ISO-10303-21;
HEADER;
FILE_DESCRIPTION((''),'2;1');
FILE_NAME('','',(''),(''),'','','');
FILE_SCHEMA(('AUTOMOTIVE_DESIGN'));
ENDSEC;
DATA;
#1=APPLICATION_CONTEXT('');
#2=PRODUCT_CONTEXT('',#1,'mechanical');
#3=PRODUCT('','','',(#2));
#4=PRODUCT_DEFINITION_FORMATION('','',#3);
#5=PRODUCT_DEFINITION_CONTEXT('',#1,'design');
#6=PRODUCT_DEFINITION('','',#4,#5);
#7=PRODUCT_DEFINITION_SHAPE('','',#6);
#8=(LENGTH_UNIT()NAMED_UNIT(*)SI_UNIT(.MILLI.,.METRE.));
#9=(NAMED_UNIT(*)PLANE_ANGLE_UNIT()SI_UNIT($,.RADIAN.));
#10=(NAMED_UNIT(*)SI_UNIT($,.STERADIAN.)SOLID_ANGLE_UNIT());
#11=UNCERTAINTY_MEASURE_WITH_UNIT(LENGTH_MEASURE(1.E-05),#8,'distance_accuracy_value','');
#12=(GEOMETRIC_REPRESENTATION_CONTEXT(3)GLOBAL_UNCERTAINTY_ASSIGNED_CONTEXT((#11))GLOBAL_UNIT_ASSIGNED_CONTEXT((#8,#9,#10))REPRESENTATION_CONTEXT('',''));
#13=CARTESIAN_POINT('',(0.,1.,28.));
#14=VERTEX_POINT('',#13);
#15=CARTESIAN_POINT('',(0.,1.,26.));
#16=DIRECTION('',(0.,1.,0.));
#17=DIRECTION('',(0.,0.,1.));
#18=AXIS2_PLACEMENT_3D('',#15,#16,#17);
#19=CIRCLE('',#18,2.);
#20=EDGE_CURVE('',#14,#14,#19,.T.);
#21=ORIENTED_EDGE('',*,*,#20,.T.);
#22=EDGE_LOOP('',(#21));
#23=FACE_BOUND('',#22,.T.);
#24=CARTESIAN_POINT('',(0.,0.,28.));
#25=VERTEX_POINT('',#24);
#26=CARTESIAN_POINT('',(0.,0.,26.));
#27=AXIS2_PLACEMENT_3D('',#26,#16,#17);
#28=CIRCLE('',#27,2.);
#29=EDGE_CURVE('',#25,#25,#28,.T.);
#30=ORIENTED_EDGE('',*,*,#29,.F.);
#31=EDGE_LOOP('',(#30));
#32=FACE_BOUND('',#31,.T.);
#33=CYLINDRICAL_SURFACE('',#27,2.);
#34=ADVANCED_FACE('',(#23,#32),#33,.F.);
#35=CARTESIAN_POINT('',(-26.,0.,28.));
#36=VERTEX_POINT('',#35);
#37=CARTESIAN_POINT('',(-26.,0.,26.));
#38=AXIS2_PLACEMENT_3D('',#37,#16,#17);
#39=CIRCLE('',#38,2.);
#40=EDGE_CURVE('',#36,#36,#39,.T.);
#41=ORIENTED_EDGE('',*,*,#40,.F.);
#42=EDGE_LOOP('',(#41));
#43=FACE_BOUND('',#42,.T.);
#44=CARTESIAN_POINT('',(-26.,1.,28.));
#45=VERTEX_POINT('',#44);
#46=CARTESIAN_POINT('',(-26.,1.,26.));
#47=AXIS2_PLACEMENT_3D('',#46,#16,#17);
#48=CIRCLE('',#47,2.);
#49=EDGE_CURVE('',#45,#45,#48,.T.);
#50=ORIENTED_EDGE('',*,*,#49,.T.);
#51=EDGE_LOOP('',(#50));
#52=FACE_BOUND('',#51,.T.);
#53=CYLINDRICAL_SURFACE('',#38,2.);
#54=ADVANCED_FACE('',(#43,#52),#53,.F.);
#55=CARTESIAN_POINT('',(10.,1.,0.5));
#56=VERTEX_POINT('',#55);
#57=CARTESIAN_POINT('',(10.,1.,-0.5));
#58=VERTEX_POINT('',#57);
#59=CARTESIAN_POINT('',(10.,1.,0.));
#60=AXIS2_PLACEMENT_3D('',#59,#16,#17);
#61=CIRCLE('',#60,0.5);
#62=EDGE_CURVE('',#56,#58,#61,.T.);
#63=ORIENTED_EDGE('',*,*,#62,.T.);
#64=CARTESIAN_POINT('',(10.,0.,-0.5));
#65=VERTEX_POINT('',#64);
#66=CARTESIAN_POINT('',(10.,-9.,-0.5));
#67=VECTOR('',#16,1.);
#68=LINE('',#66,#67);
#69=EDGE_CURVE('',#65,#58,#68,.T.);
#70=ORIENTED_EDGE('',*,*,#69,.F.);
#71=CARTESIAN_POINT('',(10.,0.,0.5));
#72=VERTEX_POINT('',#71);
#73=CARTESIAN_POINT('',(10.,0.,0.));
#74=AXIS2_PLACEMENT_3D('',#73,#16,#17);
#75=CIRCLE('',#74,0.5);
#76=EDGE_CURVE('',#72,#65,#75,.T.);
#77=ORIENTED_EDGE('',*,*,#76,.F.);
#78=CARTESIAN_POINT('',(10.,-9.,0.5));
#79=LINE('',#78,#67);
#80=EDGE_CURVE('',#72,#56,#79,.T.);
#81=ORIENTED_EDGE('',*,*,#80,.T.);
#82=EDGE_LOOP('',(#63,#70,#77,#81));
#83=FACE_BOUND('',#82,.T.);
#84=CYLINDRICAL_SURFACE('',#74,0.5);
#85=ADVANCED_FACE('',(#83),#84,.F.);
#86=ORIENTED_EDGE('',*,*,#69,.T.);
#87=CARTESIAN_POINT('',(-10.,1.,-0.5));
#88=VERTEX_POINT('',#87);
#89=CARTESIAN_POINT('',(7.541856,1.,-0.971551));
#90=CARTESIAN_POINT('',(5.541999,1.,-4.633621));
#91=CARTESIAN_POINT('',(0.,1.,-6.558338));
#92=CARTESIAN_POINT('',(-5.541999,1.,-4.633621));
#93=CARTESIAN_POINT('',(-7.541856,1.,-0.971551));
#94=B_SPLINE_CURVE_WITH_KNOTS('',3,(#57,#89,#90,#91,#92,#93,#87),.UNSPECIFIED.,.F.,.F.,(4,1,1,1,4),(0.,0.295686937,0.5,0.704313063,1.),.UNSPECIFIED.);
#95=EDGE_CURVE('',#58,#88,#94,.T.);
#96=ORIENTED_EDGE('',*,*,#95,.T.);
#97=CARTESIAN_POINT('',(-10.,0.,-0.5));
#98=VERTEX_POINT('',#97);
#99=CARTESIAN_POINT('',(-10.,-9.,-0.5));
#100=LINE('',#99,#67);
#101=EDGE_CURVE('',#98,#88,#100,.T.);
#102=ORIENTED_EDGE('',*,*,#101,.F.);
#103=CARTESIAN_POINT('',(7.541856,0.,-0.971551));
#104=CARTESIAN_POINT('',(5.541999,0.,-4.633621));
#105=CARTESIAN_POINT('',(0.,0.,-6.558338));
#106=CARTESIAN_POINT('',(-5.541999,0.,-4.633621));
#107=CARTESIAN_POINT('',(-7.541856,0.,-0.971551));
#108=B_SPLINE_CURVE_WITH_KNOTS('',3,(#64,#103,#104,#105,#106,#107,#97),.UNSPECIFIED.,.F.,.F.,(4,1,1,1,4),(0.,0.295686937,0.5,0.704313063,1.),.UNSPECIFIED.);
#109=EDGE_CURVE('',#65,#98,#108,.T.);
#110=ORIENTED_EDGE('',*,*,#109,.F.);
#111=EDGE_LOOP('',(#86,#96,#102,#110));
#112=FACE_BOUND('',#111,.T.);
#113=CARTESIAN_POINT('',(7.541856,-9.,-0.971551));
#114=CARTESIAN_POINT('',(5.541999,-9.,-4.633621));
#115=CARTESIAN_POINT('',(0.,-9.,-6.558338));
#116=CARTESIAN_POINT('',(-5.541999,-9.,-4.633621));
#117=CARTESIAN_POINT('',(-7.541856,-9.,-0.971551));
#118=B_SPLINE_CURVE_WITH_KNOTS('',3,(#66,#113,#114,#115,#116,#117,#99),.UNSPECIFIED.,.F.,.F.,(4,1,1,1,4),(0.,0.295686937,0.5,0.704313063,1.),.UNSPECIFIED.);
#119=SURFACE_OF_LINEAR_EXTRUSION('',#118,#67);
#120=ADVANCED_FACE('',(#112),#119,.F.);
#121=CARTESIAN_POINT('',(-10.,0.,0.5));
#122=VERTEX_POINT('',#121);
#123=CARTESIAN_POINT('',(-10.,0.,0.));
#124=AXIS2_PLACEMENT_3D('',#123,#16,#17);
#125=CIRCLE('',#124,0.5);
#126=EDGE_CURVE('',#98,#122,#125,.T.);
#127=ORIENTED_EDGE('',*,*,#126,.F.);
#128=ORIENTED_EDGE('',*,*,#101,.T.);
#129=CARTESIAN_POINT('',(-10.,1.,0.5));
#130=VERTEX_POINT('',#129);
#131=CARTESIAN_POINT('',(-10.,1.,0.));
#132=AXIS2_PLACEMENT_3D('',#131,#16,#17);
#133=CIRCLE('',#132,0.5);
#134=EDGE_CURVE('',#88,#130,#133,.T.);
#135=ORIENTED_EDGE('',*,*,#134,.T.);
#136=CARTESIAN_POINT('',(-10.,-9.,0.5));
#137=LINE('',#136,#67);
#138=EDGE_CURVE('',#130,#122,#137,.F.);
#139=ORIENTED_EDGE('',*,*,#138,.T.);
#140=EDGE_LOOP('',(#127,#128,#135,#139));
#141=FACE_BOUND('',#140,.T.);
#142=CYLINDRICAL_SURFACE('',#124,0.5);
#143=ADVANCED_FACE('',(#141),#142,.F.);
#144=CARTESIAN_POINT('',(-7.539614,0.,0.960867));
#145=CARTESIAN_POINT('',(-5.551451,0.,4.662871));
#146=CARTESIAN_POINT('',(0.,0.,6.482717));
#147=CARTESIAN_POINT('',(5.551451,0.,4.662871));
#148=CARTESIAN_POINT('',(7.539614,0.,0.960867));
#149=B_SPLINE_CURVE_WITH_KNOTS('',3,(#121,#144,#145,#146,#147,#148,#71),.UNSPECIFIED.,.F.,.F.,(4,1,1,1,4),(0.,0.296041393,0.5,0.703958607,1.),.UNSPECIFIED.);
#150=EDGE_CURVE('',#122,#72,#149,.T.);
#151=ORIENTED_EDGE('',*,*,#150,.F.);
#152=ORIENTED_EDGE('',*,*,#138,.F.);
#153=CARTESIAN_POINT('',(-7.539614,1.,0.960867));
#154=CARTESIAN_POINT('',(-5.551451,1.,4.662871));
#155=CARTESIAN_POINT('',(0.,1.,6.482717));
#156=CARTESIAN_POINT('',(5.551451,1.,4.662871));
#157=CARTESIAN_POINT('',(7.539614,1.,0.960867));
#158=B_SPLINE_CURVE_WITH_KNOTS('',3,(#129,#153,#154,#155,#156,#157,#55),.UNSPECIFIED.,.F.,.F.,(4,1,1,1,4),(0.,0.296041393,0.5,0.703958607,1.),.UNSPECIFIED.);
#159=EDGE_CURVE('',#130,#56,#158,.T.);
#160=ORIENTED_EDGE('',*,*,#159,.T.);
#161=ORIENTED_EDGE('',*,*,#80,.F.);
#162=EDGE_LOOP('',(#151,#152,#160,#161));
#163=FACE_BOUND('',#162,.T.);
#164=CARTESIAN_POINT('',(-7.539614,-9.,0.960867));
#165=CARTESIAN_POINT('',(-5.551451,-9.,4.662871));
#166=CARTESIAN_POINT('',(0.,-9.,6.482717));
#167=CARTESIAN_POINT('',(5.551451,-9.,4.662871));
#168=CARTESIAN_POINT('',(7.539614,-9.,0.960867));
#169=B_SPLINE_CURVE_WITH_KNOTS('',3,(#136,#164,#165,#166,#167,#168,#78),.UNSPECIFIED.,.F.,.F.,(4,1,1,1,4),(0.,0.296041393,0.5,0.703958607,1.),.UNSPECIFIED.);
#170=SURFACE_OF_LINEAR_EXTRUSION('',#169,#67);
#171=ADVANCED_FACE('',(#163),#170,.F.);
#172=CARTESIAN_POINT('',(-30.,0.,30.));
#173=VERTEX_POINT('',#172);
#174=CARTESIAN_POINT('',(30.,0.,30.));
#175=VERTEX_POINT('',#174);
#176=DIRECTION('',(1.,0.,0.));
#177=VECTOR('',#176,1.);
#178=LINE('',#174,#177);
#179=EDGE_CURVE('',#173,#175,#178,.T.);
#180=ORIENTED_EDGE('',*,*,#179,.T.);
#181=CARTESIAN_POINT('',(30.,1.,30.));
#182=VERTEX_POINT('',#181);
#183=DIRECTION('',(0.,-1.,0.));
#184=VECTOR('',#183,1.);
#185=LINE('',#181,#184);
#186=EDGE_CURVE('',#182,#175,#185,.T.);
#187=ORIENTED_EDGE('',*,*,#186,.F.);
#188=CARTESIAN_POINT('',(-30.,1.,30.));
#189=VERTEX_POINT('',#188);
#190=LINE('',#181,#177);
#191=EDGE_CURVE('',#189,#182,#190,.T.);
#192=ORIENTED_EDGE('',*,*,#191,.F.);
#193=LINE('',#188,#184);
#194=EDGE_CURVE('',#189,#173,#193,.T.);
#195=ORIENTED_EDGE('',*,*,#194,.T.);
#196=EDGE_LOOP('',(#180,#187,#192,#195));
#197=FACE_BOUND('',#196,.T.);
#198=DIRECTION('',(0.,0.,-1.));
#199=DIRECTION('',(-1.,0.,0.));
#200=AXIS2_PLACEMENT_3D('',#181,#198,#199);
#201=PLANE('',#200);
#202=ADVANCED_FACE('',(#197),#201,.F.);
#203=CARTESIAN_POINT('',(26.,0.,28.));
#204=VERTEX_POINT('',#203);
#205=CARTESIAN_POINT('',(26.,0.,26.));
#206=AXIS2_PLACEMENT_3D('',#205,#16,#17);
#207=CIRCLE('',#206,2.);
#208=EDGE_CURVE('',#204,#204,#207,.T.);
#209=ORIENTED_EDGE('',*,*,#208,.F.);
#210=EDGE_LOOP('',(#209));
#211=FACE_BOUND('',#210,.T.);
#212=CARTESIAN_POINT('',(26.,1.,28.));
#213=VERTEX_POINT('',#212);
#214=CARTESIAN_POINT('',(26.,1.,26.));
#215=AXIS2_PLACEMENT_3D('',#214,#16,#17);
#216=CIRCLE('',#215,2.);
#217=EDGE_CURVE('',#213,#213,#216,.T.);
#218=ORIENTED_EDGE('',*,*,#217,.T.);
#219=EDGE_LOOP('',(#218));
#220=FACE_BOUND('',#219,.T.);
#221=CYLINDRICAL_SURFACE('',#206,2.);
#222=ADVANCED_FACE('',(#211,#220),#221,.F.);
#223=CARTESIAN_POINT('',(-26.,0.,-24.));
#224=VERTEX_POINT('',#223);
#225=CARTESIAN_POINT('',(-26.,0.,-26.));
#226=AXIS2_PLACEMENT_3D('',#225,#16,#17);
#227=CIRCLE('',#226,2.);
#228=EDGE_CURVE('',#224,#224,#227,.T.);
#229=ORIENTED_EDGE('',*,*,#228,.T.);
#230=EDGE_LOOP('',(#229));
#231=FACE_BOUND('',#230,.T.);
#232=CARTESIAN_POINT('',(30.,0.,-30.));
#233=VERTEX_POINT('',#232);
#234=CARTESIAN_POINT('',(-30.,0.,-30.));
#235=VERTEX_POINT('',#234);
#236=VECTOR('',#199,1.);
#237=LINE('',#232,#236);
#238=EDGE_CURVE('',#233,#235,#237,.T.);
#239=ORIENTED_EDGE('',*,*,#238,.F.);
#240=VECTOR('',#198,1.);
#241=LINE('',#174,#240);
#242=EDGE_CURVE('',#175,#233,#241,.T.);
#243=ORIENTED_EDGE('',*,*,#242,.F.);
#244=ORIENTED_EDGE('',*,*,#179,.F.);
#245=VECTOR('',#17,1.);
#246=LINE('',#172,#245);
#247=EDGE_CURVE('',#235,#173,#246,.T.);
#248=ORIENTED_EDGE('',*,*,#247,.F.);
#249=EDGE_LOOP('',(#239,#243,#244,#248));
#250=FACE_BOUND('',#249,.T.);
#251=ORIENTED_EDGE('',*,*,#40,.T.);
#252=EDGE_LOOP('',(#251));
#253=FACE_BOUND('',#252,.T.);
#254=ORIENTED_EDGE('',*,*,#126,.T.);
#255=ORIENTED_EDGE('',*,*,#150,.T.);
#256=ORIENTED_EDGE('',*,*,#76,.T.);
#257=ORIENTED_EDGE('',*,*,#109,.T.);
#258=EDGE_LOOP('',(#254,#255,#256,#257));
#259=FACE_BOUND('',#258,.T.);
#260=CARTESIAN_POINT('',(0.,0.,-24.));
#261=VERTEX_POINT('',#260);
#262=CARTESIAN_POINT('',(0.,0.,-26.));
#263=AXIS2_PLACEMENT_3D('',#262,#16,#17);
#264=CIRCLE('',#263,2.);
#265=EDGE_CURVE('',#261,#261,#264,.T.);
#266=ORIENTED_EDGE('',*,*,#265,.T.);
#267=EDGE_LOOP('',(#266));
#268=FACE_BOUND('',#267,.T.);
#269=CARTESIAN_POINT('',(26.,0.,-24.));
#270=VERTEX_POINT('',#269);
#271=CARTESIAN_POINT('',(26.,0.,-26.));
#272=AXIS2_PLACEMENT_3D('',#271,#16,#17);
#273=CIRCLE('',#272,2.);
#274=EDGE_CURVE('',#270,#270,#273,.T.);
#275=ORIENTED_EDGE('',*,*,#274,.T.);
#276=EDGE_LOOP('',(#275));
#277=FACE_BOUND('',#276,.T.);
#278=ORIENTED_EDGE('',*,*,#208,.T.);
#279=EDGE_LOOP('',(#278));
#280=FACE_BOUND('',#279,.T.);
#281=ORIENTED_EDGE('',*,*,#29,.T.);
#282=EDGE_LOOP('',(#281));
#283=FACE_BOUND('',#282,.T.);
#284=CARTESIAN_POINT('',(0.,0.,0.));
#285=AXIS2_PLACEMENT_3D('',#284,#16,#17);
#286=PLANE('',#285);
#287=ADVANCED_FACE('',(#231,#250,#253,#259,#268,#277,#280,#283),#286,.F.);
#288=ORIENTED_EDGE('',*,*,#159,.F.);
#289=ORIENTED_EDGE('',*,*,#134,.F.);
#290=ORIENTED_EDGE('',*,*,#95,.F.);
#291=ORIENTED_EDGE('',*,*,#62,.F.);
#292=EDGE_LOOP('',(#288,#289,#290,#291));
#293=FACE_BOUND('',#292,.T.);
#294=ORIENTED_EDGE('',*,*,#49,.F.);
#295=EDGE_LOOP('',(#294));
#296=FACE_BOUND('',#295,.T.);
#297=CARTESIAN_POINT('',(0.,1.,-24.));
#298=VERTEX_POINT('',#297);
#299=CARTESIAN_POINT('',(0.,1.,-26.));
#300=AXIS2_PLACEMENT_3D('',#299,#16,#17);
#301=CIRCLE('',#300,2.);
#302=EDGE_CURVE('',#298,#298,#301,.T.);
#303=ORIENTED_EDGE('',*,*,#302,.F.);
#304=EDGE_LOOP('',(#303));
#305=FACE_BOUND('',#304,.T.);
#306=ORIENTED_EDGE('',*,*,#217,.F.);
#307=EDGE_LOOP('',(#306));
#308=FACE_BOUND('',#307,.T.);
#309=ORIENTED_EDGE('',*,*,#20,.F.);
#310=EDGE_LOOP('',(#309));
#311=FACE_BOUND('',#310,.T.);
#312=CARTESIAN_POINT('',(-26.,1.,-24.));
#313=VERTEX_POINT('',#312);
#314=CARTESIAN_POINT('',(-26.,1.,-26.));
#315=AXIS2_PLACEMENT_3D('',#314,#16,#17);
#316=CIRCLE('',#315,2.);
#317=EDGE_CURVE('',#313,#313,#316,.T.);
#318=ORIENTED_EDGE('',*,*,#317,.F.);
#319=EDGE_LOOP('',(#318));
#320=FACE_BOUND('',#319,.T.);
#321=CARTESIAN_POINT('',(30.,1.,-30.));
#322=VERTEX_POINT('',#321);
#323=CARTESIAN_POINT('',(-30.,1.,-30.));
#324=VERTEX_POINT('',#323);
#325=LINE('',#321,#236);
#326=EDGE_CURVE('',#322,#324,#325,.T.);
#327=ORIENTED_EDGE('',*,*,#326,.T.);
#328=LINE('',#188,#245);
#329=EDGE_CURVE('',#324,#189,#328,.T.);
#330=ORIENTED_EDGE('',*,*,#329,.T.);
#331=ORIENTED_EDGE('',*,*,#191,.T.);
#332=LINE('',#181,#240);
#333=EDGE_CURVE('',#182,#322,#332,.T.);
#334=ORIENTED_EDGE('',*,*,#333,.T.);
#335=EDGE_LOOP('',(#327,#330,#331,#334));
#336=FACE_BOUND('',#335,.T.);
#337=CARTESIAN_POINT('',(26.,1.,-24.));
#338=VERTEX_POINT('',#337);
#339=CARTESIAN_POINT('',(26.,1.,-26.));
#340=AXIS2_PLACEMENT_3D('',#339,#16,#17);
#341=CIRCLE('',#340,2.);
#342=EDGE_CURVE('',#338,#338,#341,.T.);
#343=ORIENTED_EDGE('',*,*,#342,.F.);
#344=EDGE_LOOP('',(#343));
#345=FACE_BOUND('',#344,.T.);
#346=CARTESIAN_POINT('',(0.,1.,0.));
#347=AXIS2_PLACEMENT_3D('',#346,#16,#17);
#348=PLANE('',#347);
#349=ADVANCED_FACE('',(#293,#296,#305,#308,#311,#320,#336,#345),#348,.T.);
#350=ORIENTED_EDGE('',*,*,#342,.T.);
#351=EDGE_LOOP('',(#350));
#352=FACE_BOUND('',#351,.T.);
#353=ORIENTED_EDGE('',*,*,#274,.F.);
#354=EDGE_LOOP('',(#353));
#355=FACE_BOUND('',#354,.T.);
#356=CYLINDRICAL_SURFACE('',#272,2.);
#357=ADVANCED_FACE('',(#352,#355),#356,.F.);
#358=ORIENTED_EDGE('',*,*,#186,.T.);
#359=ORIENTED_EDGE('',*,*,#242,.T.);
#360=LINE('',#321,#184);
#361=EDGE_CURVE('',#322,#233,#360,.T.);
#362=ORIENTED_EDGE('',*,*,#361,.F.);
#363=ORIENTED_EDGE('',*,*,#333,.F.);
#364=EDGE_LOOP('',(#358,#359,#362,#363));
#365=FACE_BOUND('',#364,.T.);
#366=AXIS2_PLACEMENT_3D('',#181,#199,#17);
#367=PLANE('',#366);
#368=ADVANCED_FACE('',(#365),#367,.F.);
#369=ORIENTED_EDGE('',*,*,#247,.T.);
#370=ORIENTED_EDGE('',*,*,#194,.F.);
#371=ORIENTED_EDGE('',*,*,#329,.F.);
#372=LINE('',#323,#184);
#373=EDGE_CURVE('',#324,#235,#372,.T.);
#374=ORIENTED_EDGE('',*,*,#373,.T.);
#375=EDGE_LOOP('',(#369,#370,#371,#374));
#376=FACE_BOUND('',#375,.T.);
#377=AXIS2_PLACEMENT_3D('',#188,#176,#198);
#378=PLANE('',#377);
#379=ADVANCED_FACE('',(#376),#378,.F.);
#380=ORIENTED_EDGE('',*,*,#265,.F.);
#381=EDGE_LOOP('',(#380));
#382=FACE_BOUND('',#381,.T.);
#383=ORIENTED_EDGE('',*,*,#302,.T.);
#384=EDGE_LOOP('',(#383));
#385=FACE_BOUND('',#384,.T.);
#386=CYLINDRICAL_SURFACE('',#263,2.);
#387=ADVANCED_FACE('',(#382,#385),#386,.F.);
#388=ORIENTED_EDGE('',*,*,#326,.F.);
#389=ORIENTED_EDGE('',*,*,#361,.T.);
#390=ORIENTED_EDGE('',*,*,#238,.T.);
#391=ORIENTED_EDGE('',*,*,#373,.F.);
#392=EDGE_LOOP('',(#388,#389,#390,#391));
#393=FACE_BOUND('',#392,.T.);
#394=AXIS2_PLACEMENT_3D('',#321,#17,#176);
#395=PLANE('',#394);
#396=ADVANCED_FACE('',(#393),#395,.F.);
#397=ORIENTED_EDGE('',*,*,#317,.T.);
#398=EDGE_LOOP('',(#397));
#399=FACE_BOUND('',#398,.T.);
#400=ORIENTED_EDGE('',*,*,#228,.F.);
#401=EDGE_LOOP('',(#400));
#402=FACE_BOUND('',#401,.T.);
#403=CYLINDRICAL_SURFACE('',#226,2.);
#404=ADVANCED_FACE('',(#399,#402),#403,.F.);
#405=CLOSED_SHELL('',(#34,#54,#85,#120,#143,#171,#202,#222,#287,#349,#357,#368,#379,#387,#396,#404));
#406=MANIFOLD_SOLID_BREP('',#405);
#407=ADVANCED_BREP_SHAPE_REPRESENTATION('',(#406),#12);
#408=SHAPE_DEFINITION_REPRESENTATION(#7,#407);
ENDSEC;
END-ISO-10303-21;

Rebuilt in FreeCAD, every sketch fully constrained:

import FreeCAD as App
import Part
import Sketcher

V = App.Vector
Q = App.Units.Quantity


def add_polygon(sketch, points):
    """Adds a closed chain of lines whose ends are joined by coincident constraints."""
    first, n = sketch.GeometryCount, len(points)
    for a, b in zip(points, points[1:] + points[:1]):
        sketch.addGeometry(Part.LineSegment(App.Vector(*a, 0), App.Vector(*b, 0)), False)
    for i in range(n):
        sketch.addConstraint(Sketcher.Constraint("Coincident", first + i, 2, first + (i + 1) % n, 1))

doc = App.newDocument("Part")
body = doc.addObject("PartDesign::Body", "Body")

# Sketch on XZ plane
sketch1 = doc.addObject("Sketcher::SketchObject", "Sketch")
body.addObject(sketch1)
sketch1.AttachmentSupport = (doc.XZ_Plane, [""])
sketch1.MapMode = "FlatFace"
add_polygon(sketch1, [(-30, -30), (-30, 30), (30, 30), (30, -30)])  # lines 0-3
sketch1.addConstraint([
    Sketcher.Constraint("Vertical", 0),
    Sketcher.Constraint("Horizontal", 1),
    Sketcher.Constraint("Vertical", 2),
    Sketcher.Constraint("Horizontal", 3),
    Sketcher.Constraint("Symmetric", 0, 2, 2, 2, -1, 1),
    Sketcher.Constraint("Equal", 3, 0),
    Sketcher.Constraint("DistanceX", 1, 1, 1, 2, Q("60 mm")),
])
pad1 = doc.addObject("PartDesign::Pad", "Pad")
body.addObject(pad1)
pad1.Profile = sketch1
pad1.Length = 1
pad1.Reversed = True

# Sketch on XZ plane
sketch2 = doc.addObject("Sketcher::SketchObject", "Sketch001")
body.addObject(sketch2)
sketch2.AttachmentSupport = (doc.XZ_Plane, [""])
sketch2.MapMode = "FlatFace"
sketch2.AttachmentOffset = App.Placement(V(0, 0, -1), App.Rotation())
sketch2.addGeometry([
    Part.Circle(V(-26, -26, 0), V(0, 0, 1), 2),  # 0
    Part.Circle(V(0, -26, 0), V(0, 0, 1), 2),  # 1
    Part.Circle(V(26, -26, 0), V(0, 0, 1), 2),  # 2
    Part.Circle(V(26, 26, 0), V(0, 0, 1), 2),  # 3
    Part.Circle(V(0, 26, 0), V(0, 0, 1), 2),  # 4
    Part.Circle(V(-26, 26, 0), V(0, 0, 1), 2),  # 5
], False)
sketch2.addConstraint([
    Sketcher.Constraint("Equal", 0, 1),
    Sketcher.Constraint("Equal", 1, 2),
    Sketcher.Constraint("Equal", 2, 3),
    Sketcher.Constraint("Equal", 3, 4),
    Sketcher.Constraint("Equal", 4, 5),
    Sketcher.Constraint("Symmetric", 0, 3, 3, 3, -1, 1),
    Sketcher.Constraint("Symmetric", 1, 3, 4, 3, -1, 1),
    Sketcher.Constraint("Symmetric", 2, 3, 5, 3, -1, 1),
    Sketcher.Constraint("Symmetric", 0, 3, 2, 3, -2),
    Sketcher.Constraint("PointOnObject", 1, 3, -2),
    Sketcher.Constraint("Horizontal", 0, 3, 1, 3),
    Sketcher.Constraint("Diameter", 0, Q("4 mm")),
    Sketcher.Constraint("DistanceX", 0, 3, -1, 1, Q("26 mm")),
    Sketcher.Constraint("DistanceY", 0, 3, -1, 1, Q("26 mm")),
])
pocket1 = doc.addObject("PartDesign::Pocket", "Pocket")
body.addObject(pocket1)
pocket1.Profile = sketch2
pocket1.Type = "ThroughAll"
pocket1.Reversed = True

# Sketch on XZ plane
sketch3 = doc.addObject("Sketcher::SketchObject", "Sketch002")
body.addObject(sketch3)
sketch3.AttachmentSupport = (doc.XZ_Plane, [""])
sketch3.MapMode = "FlatFace"
sketch3.AttachmentOffset = App.Placement(V(0, 0, -1), App.Rotation())
sketch3.addGeometry([
    Part.Circle(V(10, 0, 0), V(0, 0, 1), 0.5),
    Part.Circle(V(-10, 0, 0), V(0, 0, 1), 0.5),
], False)
sketch3.addConstraint([
    Sketcher.Constraint("Equal", 0, 1),
    Sketcher.Constraint("Symmetric", 0, 3, 1, 3, -1, 1),
    Sketcher.Constraint("PointOnObject", 0, 3, -1),
    Sketcher.Constraint("Diameter", 0, Q("1 mm")),
    Sketcher.Constraint("DistanceX", -1, 1, 0, 3, Q("10 mm")),
])
pocket2 = doc.addObject("PartDesign::Pocket", "Pocket001")
body.addObject(pocket2)
pocket2.Profile = sketch3
pocket2.Type = "ThroughAll"
pocket2.Reversed = True

# Sketch on XZ plane
sketch4 = doc.addObject("Sketcher::SketchObject", "Sketch003")
body.addObject(sketch4)
sketch4.AttachmentSupport = (doc.XZ_Plane, [""])
sketch4.MapMode = "FlatFace"
sketch4.AttachmentOffset = App.Placement(V(0, 0, -1), App.Rotation())
sketch4.addGeometry([
    Part.BSplineCurve([V(10, -0.5, 0), V(7.541856, -0.971551, 0), V(5.541999, -4.633621, 0), V(0, -6.558338, 0), V(-5.541999, -4.633621, 0), V(-7.541856, -0.971551, 0), V(-10, -0.5, 0)], [4, 1, 1, 1, 4], [0, 0.295686937, 0.5, 0.704313063, 1], False, 3, [1, 1, 1, 1, 1, 1, 1], False),
    Part.BSplineCurve([V(-10, -0.5, 0), V(-11, 0, 0), V(-10, 0.5, 0)], [3, 3], [0, 1], False, 2, [1, 1, 1], False),
    Part.BSplineCurve([V(10, 0.5, 0), V(7.539614, 0.960867, 0), V(5.551451, 4.662871, 0), V(0, 6.482717, 0), V(-5.551451, 4.662871, 0), V(-7.539614, 0.960867, 0), V(-10, 0.5, 0)], [4, 1, 1, 1, 4], [0, 0.296041393, 0.5, 0.703958607, 1], False, 3, [1, 1, 1, 1, 1, 1, 1], False),
    Part.BSplineCurve([V(10, -0.5, 0), V(11, 0, 0), V(10, 0.5, 0)], [3, 3], [0, 1], False, 2, [1, 1, 1], False),
], False)
sketch4.addConstraint([
    Sketcher.Constraint("Block", 0),
    Sketcher.Constraint("Block", 1),
    Sketcher.Constraint("Block", 2),
    Sketcher.Constraint("Block", 3),
])
pocket3 = doc.addObject("PartDesign::Pocket", "Pocket002")
body.addObject(pocket3)
pocket3.Profile = sketch4
pocket3.Length = 10
pocket3.Reversed = True

doc.recompute()
